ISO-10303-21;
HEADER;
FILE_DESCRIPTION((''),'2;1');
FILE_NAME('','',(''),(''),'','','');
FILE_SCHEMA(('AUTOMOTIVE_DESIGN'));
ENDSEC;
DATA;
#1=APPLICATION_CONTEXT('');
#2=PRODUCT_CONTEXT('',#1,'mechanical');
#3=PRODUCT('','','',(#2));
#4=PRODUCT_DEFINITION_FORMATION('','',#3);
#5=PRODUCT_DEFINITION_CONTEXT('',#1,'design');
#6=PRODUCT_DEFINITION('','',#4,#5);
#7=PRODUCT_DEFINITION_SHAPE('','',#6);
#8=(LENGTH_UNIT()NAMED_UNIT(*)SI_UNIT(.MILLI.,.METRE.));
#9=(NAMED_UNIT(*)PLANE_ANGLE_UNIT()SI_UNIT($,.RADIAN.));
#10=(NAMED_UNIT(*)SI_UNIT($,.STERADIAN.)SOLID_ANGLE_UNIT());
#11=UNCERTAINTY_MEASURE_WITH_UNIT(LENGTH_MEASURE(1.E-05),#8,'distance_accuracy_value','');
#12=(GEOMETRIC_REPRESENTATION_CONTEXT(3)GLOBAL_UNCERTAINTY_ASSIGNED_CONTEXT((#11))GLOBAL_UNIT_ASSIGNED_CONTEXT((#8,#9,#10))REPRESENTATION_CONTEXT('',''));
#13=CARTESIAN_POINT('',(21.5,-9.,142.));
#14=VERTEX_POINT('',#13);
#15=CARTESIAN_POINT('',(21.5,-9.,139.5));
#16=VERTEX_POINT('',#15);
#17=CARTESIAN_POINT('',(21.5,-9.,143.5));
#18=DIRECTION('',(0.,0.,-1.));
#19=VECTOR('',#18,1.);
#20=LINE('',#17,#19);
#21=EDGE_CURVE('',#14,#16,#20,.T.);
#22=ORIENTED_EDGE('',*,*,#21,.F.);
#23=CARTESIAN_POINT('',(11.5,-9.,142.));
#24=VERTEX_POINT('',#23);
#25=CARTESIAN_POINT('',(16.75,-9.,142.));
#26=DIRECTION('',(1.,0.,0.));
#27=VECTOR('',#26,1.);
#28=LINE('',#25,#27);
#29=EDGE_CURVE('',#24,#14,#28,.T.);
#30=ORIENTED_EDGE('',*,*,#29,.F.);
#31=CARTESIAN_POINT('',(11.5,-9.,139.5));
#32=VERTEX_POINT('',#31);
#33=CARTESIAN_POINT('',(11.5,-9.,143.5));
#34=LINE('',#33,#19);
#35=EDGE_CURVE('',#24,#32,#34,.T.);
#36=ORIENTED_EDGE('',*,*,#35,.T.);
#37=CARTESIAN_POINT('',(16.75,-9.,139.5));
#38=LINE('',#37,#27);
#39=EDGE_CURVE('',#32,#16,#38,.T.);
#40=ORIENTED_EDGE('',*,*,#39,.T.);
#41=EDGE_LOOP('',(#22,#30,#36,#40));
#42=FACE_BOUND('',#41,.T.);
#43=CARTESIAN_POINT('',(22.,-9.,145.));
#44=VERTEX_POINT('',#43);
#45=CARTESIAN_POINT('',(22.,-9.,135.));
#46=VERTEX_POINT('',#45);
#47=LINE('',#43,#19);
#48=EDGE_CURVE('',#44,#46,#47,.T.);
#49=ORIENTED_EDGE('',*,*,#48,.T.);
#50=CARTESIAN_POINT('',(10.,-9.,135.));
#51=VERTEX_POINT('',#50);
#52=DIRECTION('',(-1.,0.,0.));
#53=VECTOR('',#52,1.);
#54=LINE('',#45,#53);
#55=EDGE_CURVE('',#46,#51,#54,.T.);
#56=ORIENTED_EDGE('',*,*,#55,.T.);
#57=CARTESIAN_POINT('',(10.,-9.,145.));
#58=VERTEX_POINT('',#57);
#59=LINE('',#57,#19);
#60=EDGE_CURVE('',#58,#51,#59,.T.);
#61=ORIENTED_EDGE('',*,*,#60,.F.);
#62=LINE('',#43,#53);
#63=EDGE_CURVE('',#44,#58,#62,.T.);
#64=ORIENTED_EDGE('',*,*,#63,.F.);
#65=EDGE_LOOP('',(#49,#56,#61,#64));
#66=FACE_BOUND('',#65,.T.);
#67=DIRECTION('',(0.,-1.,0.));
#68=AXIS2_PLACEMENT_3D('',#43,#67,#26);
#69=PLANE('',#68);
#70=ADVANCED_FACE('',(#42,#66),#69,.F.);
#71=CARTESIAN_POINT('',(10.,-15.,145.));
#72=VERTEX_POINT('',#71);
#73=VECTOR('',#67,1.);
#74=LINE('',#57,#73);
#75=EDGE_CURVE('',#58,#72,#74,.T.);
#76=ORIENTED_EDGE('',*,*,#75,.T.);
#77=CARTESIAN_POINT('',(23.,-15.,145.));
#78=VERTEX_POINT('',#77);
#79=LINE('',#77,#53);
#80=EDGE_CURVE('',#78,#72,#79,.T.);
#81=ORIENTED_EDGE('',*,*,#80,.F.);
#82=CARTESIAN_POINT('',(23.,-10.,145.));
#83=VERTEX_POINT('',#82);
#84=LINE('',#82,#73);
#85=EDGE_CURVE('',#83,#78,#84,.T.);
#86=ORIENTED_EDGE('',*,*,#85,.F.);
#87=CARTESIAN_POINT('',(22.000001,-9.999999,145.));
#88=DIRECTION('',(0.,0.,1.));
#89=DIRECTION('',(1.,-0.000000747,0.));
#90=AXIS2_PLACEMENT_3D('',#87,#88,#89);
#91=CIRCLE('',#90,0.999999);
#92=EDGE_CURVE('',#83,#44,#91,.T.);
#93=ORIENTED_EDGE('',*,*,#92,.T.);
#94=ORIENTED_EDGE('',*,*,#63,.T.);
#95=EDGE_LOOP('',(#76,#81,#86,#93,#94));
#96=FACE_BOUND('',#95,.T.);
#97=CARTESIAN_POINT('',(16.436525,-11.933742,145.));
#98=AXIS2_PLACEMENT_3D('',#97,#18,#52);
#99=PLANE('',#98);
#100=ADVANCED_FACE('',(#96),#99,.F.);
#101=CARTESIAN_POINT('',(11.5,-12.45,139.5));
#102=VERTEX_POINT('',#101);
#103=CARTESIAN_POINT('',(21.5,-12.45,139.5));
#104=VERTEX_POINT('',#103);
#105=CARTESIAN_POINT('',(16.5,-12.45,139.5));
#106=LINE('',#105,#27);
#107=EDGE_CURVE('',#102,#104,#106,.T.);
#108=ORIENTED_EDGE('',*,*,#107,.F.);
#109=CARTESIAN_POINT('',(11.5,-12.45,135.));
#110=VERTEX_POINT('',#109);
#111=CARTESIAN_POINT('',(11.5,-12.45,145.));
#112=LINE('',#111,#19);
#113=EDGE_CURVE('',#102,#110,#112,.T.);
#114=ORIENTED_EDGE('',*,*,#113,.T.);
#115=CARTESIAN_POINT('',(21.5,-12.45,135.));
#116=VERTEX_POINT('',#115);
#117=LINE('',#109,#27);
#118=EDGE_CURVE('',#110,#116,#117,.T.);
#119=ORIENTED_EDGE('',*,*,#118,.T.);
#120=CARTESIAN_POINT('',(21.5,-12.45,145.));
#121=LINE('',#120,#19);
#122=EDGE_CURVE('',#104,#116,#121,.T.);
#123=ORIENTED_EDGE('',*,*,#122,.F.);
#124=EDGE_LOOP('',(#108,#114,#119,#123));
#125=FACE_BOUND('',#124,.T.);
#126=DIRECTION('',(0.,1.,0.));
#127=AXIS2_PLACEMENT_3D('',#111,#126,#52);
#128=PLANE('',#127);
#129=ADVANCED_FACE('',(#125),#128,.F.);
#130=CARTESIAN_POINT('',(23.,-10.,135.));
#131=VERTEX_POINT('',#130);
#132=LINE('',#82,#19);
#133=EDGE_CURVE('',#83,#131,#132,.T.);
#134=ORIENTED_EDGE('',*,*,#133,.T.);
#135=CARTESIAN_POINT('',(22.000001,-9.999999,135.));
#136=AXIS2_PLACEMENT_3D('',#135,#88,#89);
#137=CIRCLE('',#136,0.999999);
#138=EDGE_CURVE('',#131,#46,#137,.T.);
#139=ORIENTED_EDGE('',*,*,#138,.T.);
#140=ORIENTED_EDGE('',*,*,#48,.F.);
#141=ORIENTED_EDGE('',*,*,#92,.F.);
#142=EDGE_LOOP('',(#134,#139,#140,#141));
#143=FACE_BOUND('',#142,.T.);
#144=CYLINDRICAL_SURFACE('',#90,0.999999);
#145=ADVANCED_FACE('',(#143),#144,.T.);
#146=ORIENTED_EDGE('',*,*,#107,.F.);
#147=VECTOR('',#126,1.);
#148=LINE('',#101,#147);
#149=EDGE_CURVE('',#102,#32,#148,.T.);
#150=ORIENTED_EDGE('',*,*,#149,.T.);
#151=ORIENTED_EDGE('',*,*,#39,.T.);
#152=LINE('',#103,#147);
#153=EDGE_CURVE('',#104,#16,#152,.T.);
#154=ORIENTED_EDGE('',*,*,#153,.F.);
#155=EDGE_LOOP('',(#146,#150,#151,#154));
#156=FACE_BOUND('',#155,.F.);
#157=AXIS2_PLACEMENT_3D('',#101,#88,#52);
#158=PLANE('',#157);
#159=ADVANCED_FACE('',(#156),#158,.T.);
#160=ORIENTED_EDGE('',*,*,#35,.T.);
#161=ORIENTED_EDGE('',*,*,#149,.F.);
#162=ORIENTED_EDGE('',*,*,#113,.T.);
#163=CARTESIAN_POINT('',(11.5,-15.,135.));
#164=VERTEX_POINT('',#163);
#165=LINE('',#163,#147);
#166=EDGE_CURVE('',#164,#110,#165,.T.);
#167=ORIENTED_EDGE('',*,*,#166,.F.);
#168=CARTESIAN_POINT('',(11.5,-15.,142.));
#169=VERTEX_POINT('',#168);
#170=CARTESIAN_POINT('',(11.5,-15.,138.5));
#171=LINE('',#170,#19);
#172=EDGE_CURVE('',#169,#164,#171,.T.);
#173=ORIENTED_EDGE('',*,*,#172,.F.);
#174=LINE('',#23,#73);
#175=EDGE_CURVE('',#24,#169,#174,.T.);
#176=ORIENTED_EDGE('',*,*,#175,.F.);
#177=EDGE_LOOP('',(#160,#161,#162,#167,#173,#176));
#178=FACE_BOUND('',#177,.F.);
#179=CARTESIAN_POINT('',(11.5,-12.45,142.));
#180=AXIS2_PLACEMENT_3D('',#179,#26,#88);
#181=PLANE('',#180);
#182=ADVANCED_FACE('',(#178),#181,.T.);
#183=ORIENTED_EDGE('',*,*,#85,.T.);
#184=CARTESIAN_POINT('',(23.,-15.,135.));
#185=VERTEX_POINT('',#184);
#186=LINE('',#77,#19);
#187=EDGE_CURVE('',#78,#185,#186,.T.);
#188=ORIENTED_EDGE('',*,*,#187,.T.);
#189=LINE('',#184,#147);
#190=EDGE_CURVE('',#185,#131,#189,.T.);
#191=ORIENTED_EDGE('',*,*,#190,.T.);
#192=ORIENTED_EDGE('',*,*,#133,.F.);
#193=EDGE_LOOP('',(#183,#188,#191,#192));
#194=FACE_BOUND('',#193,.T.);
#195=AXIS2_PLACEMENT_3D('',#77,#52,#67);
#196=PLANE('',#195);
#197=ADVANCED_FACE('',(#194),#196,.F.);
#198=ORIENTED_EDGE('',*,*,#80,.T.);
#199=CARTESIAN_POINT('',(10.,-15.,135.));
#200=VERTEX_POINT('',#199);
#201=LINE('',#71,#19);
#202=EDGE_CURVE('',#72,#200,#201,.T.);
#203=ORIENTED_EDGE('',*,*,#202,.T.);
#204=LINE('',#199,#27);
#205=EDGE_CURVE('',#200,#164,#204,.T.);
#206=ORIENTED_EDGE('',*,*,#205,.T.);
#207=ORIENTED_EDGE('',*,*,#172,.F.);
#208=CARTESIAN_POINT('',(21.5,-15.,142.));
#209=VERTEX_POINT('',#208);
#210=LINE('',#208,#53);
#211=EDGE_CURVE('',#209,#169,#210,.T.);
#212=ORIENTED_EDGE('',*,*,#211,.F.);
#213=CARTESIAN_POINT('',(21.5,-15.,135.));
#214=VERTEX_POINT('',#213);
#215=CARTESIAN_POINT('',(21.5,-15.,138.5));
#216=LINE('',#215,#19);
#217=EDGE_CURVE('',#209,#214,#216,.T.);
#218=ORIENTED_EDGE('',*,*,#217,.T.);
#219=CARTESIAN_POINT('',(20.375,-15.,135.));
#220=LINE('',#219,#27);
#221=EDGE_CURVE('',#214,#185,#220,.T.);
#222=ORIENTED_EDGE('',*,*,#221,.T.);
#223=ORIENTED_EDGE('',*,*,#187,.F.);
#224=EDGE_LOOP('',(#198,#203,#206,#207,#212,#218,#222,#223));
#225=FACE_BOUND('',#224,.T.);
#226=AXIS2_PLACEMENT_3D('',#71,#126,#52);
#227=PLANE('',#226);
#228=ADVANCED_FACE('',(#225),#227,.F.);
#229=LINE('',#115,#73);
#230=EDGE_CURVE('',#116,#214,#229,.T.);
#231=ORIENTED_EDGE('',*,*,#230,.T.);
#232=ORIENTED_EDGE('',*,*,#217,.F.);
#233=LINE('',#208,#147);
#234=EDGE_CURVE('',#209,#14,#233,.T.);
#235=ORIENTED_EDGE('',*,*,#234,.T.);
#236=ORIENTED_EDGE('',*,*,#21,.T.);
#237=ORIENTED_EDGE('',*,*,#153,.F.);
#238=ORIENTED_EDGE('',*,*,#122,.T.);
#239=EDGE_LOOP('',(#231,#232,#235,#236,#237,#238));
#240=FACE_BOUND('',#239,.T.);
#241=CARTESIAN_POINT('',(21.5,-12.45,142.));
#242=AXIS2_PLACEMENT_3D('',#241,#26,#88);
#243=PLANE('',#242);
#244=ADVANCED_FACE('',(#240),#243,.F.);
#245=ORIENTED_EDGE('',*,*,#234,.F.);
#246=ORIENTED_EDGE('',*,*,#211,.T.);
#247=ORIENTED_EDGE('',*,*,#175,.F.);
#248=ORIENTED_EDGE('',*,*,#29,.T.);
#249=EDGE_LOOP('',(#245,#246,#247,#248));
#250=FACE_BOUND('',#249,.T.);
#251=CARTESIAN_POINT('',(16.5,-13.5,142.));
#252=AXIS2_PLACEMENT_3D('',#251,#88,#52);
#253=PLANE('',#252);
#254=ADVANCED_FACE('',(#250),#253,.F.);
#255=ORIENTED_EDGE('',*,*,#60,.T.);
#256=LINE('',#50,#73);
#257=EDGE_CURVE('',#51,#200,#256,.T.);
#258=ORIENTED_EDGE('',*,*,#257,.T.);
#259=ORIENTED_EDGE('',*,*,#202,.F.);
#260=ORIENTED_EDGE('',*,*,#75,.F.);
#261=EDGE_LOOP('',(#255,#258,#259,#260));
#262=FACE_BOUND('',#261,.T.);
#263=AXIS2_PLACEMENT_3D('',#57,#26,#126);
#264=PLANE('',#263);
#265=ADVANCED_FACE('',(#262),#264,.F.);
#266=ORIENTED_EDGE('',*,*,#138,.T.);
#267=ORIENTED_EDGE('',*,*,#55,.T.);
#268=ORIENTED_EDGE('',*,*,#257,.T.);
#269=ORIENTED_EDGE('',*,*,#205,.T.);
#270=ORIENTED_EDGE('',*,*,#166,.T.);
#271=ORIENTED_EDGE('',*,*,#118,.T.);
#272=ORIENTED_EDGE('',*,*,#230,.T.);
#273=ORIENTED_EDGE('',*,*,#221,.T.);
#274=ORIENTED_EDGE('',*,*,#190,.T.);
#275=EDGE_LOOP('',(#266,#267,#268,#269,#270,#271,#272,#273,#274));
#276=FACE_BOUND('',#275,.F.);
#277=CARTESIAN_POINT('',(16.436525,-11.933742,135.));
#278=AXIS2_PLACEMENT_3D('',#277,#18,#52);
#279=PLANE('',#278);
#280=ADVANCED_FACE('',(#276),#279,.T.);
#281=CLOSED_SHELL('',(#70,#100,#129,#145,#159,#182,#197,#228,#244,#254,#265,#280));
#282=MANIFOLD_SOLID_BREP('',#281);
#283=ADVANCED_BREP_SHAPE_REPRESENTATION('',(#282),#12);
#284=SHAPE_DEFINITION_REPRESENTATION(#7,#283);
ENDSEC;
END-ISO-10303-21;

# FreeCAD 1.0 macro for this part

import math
import FreeCAD as App
import Part
import Sketcher

V = App.Vector
Q = App.Units.Quantity


def add_polygon(sketch, points):
    """Adds a closed chain of lines whose ends are joined by coincident constraints."""
    first, n = sketch.GeometryCount, len(points)
    for a, b in zip(points, points[1:] + points[:1]):
        sketch.addGeometry(Part.LineSegment(App.Vector(*a, 0), App.Vector(*b, 0)), False)
    for i in range(n):
        sketch.addConstraint(Sketcher.Constraint("Coincident", first + i, 2, first + (i + 1) % n, 1))

doc = App.newDocument("Part")
body = doc.addObject("PartDesign::Body", "Body")

sketch1 = doc.addObject("Sketcher::SketchObject", "Sketch")
body.addObject(sketch1)
sketch1.AttachmentSupport = (doc.XY_Plane, [""])
sketch1.MapMode = "FlatFace"
sketch1.addGeometry(Part.LineSegment(V(10, -9, 0), V(10, -15, 0)), False)
sketch1.addGeometry(Part.LineSegment(V(10, -15, 0), V(12.625, -15, 0)), False)
sketch1.addGeometry(Part.LineSegment(V(12.625, -15, 0), V(12.625, -14.4, 0)), False)
sketch1.addGeometry(Part.LineSegment(V(12.625, -14.4, 0), V(11.5, -14.4, 0)), False)
sketch1.addGeometry(Part.LineSegment(V(11.5, -14.4, 0), V(11.5, -12.45, 0)), False)
sketch1.addGeometry(Part.LineSegment(V(11.5, -12.45, 0), V(21.5, -12.45, 0)), False)
sketch1.addGeometry(Part.LineSegment(V(21.5, -12.45, 0), V(21.5, -14.4, 0)), False)
sketch1.addGeometry(Part.LineSegment(V(21.5, -14.4, 0), V(20.375, -14.4, 0)), False)
sketch1.addGeometry(Part.LineSegment(V(20.375, -14.4, 0), V(20.375, -15, 0)), False)
sketch1.addGeometry(Part.LineSegment(V(20.375, -15, 0), V(23, -15, 0)), False)
sketch1.addGeometry(Part.LineSegment(V(23, -15, 0), V(23, -10, 0)), False)
sketch1.addGeometry(Part.ArcOfCircle(Part.Circle(V(22.000001, -9.999999, 0), V(0, 0, 1), 0.999999), math.radians(-0.000043), math.radians(90.000043)), False)
sketch1.addGeometry(Part.LineSegment(V(22, -9, 0), V(10, -9, 0)), False)
sketch1.addConstraint(Sketcher.Constraint("Coincident", 0, 2, 1, 1))
sketch1.addConstraint(Sketcher.Constraint("Coincident", 1, 2, 2, 1))
sketch1.addConstraint(Sketcher.Constraint("Coincident", 2, 2, 3, 1))
sketch1.addConstraint(Sketcher.Constraint("Coincident", 3, 2, 4, 1))
sketch1.addConstraint(Sketcher.Constraint("Coincident", 4, 2, 5, 1))
sketch1.addConstraint(Sketcher.Constraint("Coincident", 5, 2, 6, 1))
sketch1.addConstraint(Sketcher.Constraint("Coincident", 6, 2, 7, 1))
sketch1.addConstraint(Sketcher.Constraint("Coincident", 7, 2, 8, 1))
sketch1.addConstraint(Sketcher.Constraint("Coincident", 8, 2, 9, 1))
sketch1.addConstraint(Sketcher.Constraint("Coincident", 9, 2, 10, 1))
sketch1.addConstraint(Sketcher.Constraint("Tangent", 10, 2, 11, 1))
sketch1.addConstraint(Sketcher.Constraint("Tangent", 11, 2, 12, 1))
sketch1.addConstraint(Sketcher.Constraint("Coincident", 12, 2, 0, 1))
sketch1.addConstraint(Sketcher.Constraint("Vertical", 0))
sketch1.addConstraint(Sketcher.Constraint("Horizontal", 1))
sketch1.addConstraint(Sketcher.Constraint("Vertical", 2))
sketch1.addConstraint(Sketcher.Constraint("Horizontal", 3))
sketch1.addConstraint(Sketcher.Constraint("Vertical", 4))
sketch1.addConstraint(Sketcher.Constraint("Horizontal", 5))
sketch1.addConstraint(Sketcher.Constraint("Vertical", 6))
sketch1.addConstraint(Sketcher.Constraint("Horizontal", 7))
sketch1.addConstraint(Sketcher.Constraint("Vertical", 8))
sketch1.addConstraint(Sketcher.Constraint("Horizontal", 9))
sketch1.addConstraint(Sketcher.Constraint("Vertical", 10))
sketch1.addConstraint(Sketcher.Constraint("Horizontal", 12))
sketch1.addConstraint(Sketcher.Constraint("Horizontal", 3, 2, 6, 2))
sketch1.addConstraint(Sketcher.Constraint("Horizontal", 1, 2, 8, 2))
sketch1.addConstraint(Sketcher.Constraint("Equal", 3, 7))
sketch1.addConstraint(Sketcher.Constraint("Equal", 1, 9))
sketch1.addConstraint(Sketcher.Constraint("Radius", 11, Q("0.999999 mm")))
sketch1.addConstraint(Sketcher.Constraint("DistanceX", 5, 1, 5, 2, Q("10 mm")))
sketch1.addConstraint(Sketcher.Constraint("DistanceX", 12, 2, 12, 1, Q("12 mm")))
sketch1.addConstraint(Sketcher.Constraint("DistanceY", 0, 2, 0, 1, Q("6 mm")))
sketch1.addConstraint(Sketcher.Constraint("DistanceY", 2, 1, 2, 2, Q("0.6 mm")))
sketch1.addConstraint(Sketcher.Constraint("DistanceX", -1, 1, 11, 3, Q("22.000001 mm")))
sketch1.addConstraint(Sketcher.Constraint("DistanceY", 11, 3, -1, 1, Q("9.999999 mm")))
sketch1.addConstraint(Sketcher.Constraint("DistanceY", 4, 1, 4, 2, Q("1.95 mm")))
sketch1.addConstraint(Sketcher.Constraint("DistanceX", 1, 1, 1, 2, Q("2.625 mm")))
pad1 = doc.addObject("PartDesign::Pad", "Pad")
body.addObject(pad1)
pad1.Profile = sketch1
pad1.Length = 10

sketch2 = doc.addObject("Sketcher::SketchObject", "Sketch001")
body.addObject(sketch2)
sketch2.AttachmentSupport = (doc.XZ_Plane, [""])
sketch2.MapMode = "FlatFace"
sketch2.AttachmentOffset = App.Placement(V(0, 0, 12.45), App.Rotation())
add_polygon(sketch2, [(11.5, 5.5), (11.5, 3), (21.5, 3), (21.5, 5.5)])
sketch2.addConstraint(Sketcher.Constraint("Vertical", 0))
sketch2.addConstraint(Sketcher.Constraint("Horizontal", 1))
sketch2.addConstraint(Sketcher.Constraint("Vertical", 2))
sketch2.addConstraint(Sketcher.Constraint("Horizontal", 3))
sketch2.addConstraint(Sketcher.Constraint("DistanceX", 1, 1, 1, 2, Q("10 mm")))
sketch2.addConstraint(Sketcher.Constraint("DistanceY", 0, 2, 0, 1, Q("2.5 mm")))
sketch2.addConstraint(Sketcher.Constraint("DistanceY", -1, 1, 0, 2, Q("3 mm")))
sketch2.addConstraint(Sketcher.Constraint("DistanceX", -1, 1, 0, 2, Q("11.5 mm")))
pocket1 = doc.addObject("PartDesign::Pocket", "Pocket")
body.addObject(pocket1)
pocket1.Profile = sketch2
pocket1.Length = 5

sketch3 = doc.addObject("Sketcher::SketchObject", "Sketch002")
body.addObject(sketch3)
sketch3.AttachmentSupport = (doc.XY_Plane, [""])
sketch3.MapMode = "FlatFace"
add_polygon(sketch3, [(10, -15), (10, -12), (23, -12), (23, -15)])
sketch3.addConstraint(Sketcher.Constraint("Vertical", 0))
sketch3.addConstraint(Sketcher.Constraint("Horizontal", 1))
sketch3.addConstraint(Sketcher.Constraint("Vertical", 2))
sketch3.addConstraint(Sketcher.Constraint("Horizontal", 3))
sketch3.addConstraint(Sketcher.Constraint("DistanceX", 1, 1, 1, 2, Q("13 mm")))
sketch3.addConstraint(Sketcher.Constraint("DistanceY", 0, 1, 0, 2, Q("3 mm")))
sketch3.addConstraint(Sketcher.Constraint("DistanceX", -1, 1, 0, 2, Q("10 mm")))
sketch3.addConstraint(Sketcher.Constraint("DistanceY", 0, 2, -1, 1, Q("12 mm")))
pad2 = doc.addObject("PartDesign::Pad", "Pad001")
body.addObject(pad2)
pad2.Profile = sketch3
pad2.Length = 3

sketch4 = doc.addObject("Sketcher::SketchObject", "Sketch003")
body.addObject(sketch4)
sketch4.AttachmentSupport = (doc.XZ_Plane, [""])
sketch4.MapMode = "FlatFace"
sketch4.AttachmentOffset = App.Placement(V(0, 0, 15), App.Rotation())
add_polygon(sketch4, [(11.5, 10), (11.5, 3), (21.5, 3), (21.5, 10)])
sketch4.addConstraint(Sketcher.Constraint("Vertical", 0))
sketch4.addConstraint(Sketcher.Constraint("Horizontal", 1))
sketch4.addConstraint(Sketcher.Constraint("Vertical", 2))
sketch4.addConstraint(Sketcher.Constraint("Horizontal", 3))
sketch4.addConstraint(Sketcher.Constraint("DistanceX", 1, 1, 1, 2, Q("10 mm")))
sketch4.addConstraint(Sketcher.Constraint("DistanceY", 0, 2, 0, 1, Q("7 mm")))
sketch4.addConstraint(Sketcher.Constraint("DistanceY", -1, 1, 0, 2, Q("3 mm")))
sketch4.addConstraint(Sketcher.Constraint("DistanceX", -1, 1, 0, 2, Q("11.5 mm")))
pocket2 = doc.addObject("PartDesign::Pocket", "Pocket001")
body.addObject(pocket2)
pocket2.Profile = sketch4
pocket2.Length = 1
body2 = doc.addObject("PartDesign::Body", "Body001")
doc.recompute()

mirroring = doc.addObject("Part::Mirroring", "Mirroring")
mirroring.Source = body
mirroring.Base = V(0, 0, 72.5)
mirroring.Normal = V(0, 0, 1)
body2.BaseFeature = mirroring
doc.recompute()
body.Visibility = False
mirroring.Visibility = False

doc.recompute()
